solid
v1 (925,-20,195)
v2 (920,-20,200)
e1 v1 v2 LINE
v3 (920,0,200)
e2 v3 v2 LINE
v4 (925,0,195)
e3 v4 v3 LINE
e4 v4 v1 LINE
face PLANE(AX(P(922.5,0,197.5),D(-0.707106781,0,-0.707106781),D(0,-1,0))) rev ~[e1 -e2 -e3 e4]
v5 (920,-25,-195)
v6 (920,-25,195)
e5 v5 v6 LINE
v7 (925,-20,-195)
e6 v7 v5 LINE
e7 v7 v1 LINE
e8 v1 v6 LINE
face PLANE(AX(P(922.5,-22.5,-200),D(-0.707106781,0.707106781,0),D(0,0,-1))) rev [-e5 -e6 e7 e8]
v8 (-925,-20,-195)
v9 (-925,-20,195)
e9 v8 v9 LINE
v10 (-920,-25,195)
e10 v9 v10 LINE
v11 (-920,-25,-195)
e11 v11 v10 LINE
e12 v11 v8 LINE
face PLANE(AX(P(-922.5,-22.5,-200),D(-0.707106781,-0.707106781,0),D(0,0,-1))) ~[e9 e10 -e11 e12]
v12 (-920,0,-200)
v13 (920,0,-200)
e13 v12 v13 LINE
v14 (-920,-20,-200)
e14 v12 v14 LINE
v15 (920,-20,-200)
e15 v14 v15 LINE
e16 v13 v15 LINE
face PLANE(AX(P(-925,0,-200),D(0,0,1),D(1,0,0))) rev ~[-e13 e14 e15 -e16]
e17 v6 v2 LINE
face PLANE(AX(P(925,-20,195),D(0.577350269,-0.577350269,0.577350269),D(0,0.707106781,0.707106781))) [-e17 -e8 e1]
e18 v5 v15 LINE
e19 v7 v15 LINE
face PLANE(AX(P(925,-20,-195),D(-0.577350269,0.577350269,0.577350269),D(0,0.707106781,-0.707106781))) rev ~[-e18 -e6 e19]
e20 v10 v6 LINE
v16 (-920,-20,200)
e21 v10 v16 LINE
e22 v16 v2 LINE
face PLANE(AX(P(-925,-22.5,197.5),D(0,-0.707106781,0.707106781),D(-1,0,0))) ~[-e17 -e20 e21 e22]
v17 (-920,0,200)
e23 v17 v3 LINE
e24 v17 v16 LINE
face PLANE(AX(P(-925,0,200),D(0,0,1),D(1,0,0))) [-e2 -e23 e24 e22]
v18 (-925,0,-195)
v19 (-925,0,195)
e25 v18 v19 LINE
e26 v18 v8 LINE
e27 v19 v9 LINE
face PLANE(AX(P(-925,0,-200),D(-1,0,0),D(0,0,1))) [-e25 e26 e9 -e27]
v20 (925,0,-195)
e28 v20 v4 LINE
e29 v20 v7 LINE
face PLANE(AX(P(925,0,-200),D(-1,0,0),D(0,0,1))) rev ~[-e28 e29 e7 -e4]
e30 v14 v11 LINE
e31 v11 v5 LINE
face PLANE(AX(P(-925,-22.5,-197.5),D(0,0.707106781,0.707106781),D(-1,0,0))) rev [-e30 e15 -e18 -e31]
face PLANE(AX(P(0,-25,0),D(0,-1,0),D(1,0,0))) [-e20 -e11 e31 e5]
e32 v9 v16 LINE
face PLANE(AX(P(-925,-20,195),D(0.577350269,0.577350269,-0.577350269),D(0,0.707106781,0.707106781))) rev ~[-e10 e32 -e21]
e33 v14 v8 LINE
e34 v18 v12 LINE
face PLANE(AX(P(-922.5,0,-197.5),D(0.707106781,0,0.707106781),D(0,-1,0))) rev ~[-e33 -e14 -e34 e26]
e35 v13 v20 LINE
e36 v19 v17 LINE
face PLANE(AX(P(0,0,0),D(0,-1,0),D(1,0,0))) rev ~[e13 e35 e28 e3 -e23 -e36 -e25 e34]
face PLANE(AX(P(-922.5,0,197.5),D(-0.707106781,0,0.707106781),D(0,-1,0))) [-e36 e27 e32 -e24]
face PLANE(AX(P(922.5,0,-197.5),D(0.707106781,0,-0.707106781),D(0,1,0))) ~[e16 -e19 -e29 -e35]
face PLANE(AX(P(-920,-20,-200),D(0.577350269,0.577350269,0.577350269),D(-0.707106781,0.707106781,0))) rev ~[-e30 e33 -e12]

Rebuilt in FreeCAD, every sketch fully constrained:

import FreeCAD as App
import Part
import Sketcher
from FreeCAD import Vector


def edges_at(feature, points):
    """Names of the edges that pass closest to the given points."""
    edges = feature.Shape.Edges
    near = lambda p: min(range(len(edges)), key=lambda i: edges[i].distToShape(Part.Vertex(*p))[0])
    return sorted({f"Edge{near(p) + 1}" for p in points})


def add_polygon(sketch, points):
    """Adds a closed chain of lines whose ends are joined by coincident constraints."""
    first, n = sketch.GeometryCount, len(points)
    for a, b in zip(points, points[1:] + points[:1]):
        sketch.addGeometry(Part.LineSegment(App.Vector(*a, 0), App.Vector(*b, 0)), False)
    for i in range(n):
        sketch.addConstraint(Sketcher.Constraint("Coincident", first + i, 2, first + (i + 1) % n, 1))

doc = App.newDocument("Part")
params = doc.addObject("Spreadsheet::Sheet", "Params")
for row, (alias, value) in enumerate([
    ("sketch1_width", "1850 mm"),
    ("sketch1_height", "400 mm"),
    ("pad1_length", "25 mm"),
    ("chamfer_size", "5 mm"),
], start=1):
    params.set(f"A{row}", alias)
    params.set(f"B{row}", "=" + value)
    params.setAlias(f"B{row}", alias)

body = doc.addObject("PartDesign::Body", "Body")

sketch1 = doc.addObject("Sketcher::SketchObject", "Sketch")
body.addObject(sketch1)
sketch1.AttachmentSupport = (doc.XZ_Plane, [""])
sketch1.MapMode = "FlatFace"
add_polygon(sketch1, [(-925, 200), (-925, -200), (925, -200), (925, 200)])
sketch1.addConstraint([
    Sketcher.Constraint("Vertical", 0),
    Sketcher.Constraint("Horizontal", 1),
    Sketcher.Constraint("Vertical", 2),
    Sketcher.Constraint("Horizontal", 3),
    Sketcher.Constraint("Symmetric", 0, 2, 2, 2, -1, 1),
    Sketcher.Constraint("DistanceX", 1, 1, 1, 2, 1850.0),
    Sketcher.Constraint("DistanceY", 0, 2, 0, 1, 400.0),
])
sketch1.setExpression("Constraints[9]", "Params.sketch1_width")
sketch1.setExpression("Constraints[10]", "Params.sketch1_height")
pad1 = doc.addObject("PartDesign::Pad", "Pad")
body.addObject(pad1)
pad1.Profile = sketch1
pad1.setExpression("Length", "Params.pad1_length")
doc.recompute()

chamfer = doc.addObject("PartDesign::Chamfer", "Chamfer")
body.addObject(chamfer)
chamfer.Base = (pad1, edges_at(pad1, [
    (0, -25, 200),
    (-925, -25, 0),
    (0, -25, -200),
    (925, -25, 0),
    (-925, -12.5, 200),
    (-925, -12.5, -200),
    (925, -12.5, -200),
    (925, -12.5, 200),
]))
chamfer.setExpression("Size", "Params.chamfer_size")

doc.recompute()
